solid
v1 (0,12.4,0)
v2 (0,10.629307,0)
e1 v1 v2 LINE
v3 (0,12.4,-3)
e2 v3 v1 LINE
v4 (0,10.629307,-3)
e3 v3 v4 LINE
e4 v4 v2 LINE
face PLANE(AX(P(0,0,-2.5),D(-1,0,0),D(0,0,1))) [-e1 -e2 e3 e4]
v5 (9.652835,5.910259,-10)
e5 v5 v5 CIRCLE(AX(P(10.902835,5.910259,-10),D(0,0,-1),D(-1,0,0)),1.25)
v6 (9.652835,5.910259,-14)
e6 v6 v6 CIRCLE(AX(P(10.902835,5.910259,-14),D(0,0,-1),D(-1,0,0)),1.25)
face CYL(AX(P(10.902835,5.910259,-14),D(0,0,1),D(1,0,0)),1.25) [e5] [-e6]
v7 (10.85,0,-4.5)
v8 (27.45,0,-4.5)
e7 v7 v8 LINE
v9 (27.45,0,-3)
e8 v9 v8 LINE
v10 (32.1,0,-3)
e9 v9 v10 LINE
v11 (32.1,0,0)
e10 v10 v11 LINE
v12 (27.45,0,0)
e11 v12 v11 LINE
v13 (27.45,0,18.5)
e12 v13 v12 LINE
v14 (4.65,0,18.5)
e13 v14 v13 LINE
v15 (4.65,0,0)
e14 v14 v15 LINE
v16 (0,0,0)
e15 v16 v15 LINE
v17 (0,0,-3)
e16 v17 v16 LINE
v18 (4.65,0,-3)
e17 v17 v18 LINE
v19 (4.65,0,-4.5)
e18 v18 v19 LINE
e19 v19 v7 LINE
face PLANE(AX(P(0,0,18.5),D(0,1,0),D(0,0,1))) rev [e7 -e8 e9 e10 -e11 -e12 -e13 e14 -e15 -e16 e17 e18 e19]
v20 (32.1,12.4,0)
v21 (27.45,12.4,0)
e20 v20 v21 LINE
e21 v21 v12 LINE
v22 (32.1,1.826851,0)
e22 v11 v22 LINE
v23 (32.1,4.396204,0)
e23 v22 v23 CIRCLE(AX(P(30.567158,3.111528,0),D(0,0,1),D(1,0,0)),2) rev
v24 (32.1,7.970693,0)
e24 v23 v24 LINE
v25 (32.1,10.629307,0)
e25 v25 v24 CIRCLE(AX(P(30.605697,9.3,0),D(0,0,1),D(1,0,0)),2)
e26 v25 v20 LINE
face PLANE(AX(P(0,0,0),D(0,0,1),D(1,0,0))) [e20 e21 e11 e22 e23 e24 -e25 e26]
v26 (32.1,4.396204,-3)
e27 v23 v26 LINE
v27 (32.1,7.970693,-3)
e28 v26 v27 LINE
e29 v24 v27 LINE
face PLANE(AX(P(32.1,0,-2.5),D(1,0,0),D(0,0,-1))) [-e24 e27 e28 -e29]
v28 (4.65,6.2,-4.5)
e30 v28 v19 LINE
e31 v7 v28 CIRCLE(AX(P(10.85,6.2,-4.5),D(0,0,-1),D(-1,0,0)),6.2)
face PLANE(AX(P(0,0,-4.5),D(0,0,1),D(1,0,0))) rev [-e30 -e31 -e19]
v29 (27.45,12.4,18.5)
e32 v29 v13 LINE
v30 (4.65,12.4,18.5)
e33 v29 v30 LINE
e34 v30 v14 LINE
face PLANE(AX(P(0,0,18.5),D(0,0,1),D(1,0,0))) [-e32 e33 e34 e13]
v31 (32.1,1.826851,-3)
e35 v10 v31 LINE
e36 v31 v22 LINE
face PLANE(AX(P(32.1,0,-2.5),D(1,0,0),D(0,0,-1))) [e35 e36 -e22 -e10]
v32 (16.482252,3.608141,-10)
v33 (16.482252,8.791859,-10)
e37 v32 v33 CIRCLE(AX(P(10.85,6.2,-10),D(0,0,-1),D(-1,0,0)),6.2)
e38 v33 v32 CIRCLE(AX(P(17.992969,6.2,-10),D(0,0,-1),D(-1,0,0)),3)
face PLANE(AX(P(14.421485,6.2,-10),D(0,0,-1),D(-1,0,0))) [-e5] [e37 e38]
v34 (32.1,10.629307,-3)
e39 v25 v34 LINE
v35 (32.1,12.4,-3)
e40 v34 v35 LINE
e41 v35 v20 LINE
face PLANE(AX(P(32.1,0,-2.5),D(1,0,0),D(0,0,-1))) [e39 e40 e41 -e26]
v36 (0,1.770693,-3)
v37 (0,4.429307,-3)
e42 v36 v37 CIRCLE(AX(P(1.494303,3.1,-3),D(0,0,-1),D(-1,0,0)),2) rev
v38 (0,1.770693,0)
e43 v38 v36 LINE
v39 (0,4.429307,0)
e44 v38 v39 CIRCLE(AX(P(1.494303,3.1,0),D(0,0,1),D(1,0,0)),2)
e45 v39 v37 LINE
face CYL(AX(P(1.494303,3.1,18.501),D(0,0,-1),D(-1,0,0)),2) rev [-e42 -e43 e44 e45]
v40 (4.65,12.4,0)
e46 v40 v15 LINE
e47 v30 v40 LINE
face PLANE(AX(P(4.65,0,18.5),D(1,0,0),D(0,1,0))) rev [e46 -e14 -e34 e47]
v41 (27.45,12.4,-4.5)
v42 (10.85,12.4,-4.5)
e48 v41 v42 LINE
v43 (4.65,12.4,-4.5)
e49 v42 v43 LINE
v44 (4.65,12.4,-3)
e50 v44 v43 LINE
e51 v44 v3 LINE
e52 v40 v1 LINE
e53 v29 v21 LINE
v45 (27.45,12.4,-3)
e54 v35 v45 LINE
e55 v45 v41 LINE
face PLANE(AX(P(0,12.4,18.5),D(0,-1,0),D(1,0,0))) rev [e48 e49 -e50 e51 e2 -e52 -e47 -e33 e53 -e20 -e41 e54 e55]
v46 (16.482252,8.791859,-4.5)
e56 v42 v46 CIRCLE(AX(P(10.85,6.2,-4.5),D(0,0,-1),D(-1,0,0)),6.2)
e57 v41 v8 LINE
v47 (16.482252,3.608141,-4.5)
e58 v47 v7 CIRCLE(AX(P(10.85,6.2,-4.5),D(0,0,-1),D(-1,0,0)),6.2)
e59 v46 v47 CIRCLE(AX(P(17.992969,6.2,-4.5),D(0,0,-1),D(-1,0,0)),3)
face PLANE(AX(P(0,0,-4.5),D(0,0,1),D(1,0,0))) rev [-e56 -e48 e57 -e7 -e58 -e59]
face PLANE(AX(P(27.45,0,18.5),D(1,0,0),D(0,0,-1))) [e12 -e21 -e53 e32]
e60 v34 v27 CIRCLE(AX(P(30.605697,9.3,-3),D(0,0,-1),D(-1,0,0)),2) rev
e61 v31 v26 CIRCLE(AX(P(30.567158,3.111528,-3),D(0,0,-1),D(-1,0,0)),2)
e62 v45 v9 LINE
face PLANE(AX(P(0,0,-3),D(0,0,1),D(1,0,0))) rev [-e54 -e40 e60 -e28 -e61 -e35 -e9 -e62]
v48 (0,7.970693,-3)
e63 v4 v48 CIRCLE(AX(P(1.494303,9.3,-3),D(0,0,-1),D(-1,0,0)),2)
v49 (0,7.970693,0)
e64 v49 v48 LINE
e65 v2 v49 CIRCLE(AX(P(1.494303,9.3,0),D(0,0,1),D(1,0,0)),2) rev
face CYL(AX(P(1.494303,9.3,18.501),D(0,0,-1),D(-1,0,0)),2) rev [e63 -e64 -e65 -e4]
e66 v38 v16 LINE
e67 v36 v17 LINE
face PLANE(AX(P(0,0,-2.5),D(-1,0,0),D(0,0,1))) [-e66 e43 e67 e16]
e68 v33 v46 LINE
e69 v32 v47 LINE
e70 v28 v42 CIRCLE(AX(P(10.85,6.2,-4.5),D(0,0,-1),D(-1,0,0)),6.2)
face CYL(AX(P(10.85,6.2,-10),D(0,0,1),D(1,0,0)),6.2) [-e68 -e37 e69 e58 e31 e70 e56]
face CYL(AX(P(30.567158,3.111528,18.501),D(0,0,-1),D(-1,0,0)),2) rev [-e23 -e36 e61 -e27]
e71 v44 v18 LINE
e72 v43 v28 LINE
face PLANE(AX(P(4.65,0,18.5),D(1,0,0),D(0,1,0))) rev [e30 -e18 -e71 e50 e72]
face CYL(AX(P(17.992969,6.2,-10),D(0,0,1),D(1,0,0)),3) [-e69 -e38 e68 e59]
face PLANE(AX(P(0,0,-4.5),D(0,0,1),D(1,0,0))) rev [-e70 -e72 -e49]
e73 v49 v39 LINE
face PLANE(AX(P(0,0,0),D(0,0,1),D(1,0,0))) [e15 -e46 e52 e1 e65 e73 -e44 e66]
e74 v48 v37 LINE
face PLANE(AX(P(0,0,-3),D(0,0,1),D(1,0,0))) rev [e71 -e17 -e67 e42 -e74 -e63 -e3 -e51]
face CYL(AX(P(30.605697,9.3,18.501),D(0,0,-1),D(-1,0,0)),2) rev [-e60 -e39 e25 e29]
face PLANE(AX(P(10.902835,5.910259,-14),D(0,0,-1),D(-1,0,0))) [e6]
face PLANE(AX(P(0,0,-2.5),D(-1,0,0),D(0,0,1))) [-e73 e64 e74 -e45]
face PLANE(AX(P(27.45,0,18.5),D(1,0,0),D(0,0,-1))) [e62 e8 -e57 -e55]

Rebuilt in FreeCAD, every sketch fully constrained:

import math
import FreeCAD as App
import Part
import Sketcher

doc = App.newDocument("Part")
params = doc.addObject("Spreadsheet::Sheet", "Params")
for row, (alias, value) in enumerate([
    ("sketch1_width", "22.8 mm"),
    ("sketch1_height", "12.4 mm"),
    ("pad1_length", "18.5 mm"),
    ("sketch2_height", "12.4 mm"),
    ("sketch2_width", "4.65 mm"),
    ("pad2_length", "2.5 mm"),
    ("sketch3_height", "12.4 mm"),
    ("sketch3_width", "4.65 mm"),
    ("pad3_length", "2.5 mm"),
    ("sketch4_height", "12.4 mm"),
    ("sketch4_width", "4.65 mm"),
    ("pad4_length", "3 mm"),
    ("sketch5_width", "22.8 mm"),
    ("sketch5_height", "12.4 mm"),
    ("pad5_length", "4.5 mm"),
    ("sketch6_radius", "3 mm"),
    ("sketch6_radius2", "6.2 mm"),
    ("pad6_length", "5.5 mm"),
    ("sketch7_diameter", "2.5 mm"),
    ("pad7_length", "4 mm"),
    ("sketch8_radius", "3 mm"),
    ("sketch8_radius2", "6.2 mm"),
    ("pad8_length", "5 mm"),
    ("sketch9_diameter", "4 mm"),
    ("pocket1_length", "3 mm"),
], start=1):
    params.set(f"A{row}", alias)
    params.set(f"B{row}", "=" + value)
    params.setAlias(f"B{row}", alias)

body = doc.addObject("PartDesign::Body", "Body")

# Sketch on XY plane
sketch1 = doc.addObject("Sketcher::SketchObject", "Sketch")
body.addObject(sketch1)
sketch1.AttachmentSupport = (doc.XY_Plane, [""])
sketch1.MapMode = "FlatFace"
sketch1.addGeometry(Part.LineSegment(App.Vector(5, 12, 0), App.Vector(5, 0, 0)), False)
sketch1.addGeometry(Part.LineSegment(App.Vector(5, 0, 0), App.Vector(27, 0, 0)), False)
sketch1.addGeometry(Part.LineSegment(App.Vector(27, 0, 0), App.Vector(27, 12, 0)), False)
sketch1.addGeometry(Part.LineSegment(App.Vector(27, 12, 0), App.Vector(5, 12, 0)), False)
sketch1.addConstraint(Sketcher.Constraint("Coincident", 0, 2, 1, 1))
sketch1.addConstraint(Sketcher.Constraint("Coincident", 1, 2, 2, 1))
sketch1.addConstraint(Sketcher.Constraint("Coincident", 2, 2, 3, 1))
sketch1.addConstraint(Sketcher.Constraint("Coincident", 3, 2, 0, 1))
sketch1.addConstraint(Sketcher.Constraint("Vertical", 0))
sketch1.addConstraint(Sketcher.Constraint("Horizontal", 1))
sketch1.addConstraint(Sketcher.Constraint("Vertical", 2))
sketch1.addConstraint(Sketcher.Constraint("Horizontal", 3))
sketch1.addConstraint(Sketcher.Constraint("PointOnObject", 0, 2, -1))
sketch1.addConstraint(Sketcher.Constraint("DistanceX", 1, 1, 1, 2, 22.8))
sketch1.addConstraint(Sketcher.Constraint("DistanceY", 0, 2, 0, 1, 12.4))
sketch1.addConstraint(Sketcher.Constraint("DistanceX", -1, 1, 0, 2, 4.65))
sketch1.setExpression("Constraints[9]", "Params.sketch1_width")
sketch1.setExpression("Constraints[10]", "Params.sketch1_height")
pad1 = doc.addObject("PartDesign::Pad", "Pad")
body.addObject(pad1)
pad1.Profile = sketch1
pad1.setExpression("Length", "Params.pad1_length")
body2 = doc.addObject("PartDesign::Body", "Body001")

# Sketch on XY plane
sketch2 = doc.addObject("Sketcher::SketchObject", "Sketch001")
body2.addObject(sketch2)
sketch2.AttachmentSupport = (doc.getObject("XY_Plane001"), [""])
sketch2.MapMode = "FlatFace"
sketch2.addGeometry(Part.LineSegment(App.Vector(0, 12.4, 0), App.Vector(0, 0, 0)), False)
sketch2.addGeometry(Part.LineSegment(App.Vector(0, 0, 0), App.Vector(4.7, 0, 0)), False)
sketch2.addGeometry(Part.LineSegment(App.Vector(4.7, 0, 0), App.Vector(4.7, 12.4, 0)), False)
sketch2.addGeometry(Part.LineSegment(App.Vector(4.7, 12.4, 0), App.Vector(0, 12.4, 0)), False)
sketch2.addConstraint(Sketcher.Constraint("Coincident", 0, 2, 1, 1))
sketch2.addConstraint(Sketcher.Constraint("Coincident", 1, 2, 2, 1))
sketch2.addConstraint(Sketcher.Constraint("Coincident", 2, 2, 3, 1))
sketch2.addConstraint(Sketcher.Constraint("Coincident", 3, 2, 0, 1))
sketch2.addConstraint(Sketcher.Constraint("Vertical", 0))
sketch2.addConstraint(Sketcher.Constraint("Horizontal", 1))
sketch2.addConstraint(Sketcher.Constraint("Vertical", 2))
sketch2.addConstraint(Sketcher.Constraint("Horizontal", 3))
sketch2.addConstraint(Sketcher.Constraint("Coincident", 0, 2, -1, 1))
sketch2.addConstraint(Sketcher.Constraint("DistanceY", 0, 2, 0, 1, 12.4))
sketch2.addConstraint(Sketcher.Constraint("DistanceX", 1, 1, 1, 2, 4.65))
sketch2.setExpression("Constraints[9]", "Params.sketch2_height")
sketch2.setExpression("Constraints[10]", "Params.sketch2_width")
pad2 = doc.addObject("PartDesign::Pad", "Pad001")
body2.addObject(pad2)
pad2.Profile = sketch2
pad2.setExpression("Length", "Params.pad2_length")
pad2.Reversed = True
body3 = doc.addObject("PartDesign::Body", "Body002")

# Sketch on XY plane
sketch3 = doc.addObject("Sketcher::SketchObject", "Sketch002")
body3.addObject(sketch3)
sketch3.AttachmentSupport = (doc.getObject("XY_Plane002"), [""])
sketch3.MapMode = "FlatFace"
sketch3.addGeometry(Part.LineSegment(App.Vector(27.4, 12.4, 0), App.Vector(27.4, 0, 0)), False)
sketch3.addGeometry(Part.LineSegment(App.Vector(27.4, 0, 0), App.Vector(32.1, 0, 0)), False)
sketch3.addGeometry(Part.LineSegment(App.Vector(32.1, 0, 0), App.Vector(32.1, 12.4, 0)), False)
sketch3.addGeometry(Part.LineSegment(App.Vector(32.1, 12.4, 0), App.Vector(27.4, 12.4, 0)), False)
sketch3.addConstraint(Sketcher.Constraint("Coincident", 0, 2, 1, 1))
sketch3.addConstraint(Sketcher.Constraint("Coincident", 1, 2, 2, 1))
sketch3.addConstraint(Sketcher.Constraint("Coincident", 2, 2, 3, 1))
sketch3.addConstraint(Sketcher.Constraint("Coincident", 3, 2, 0, 1))
sketch3.addConstraint(Sketcher.Constraint("Vertical", 0))
sketch3.addConstraint(Sketcher.Constraint("Horizontal", 1))
sketch3.addConstraint(Sketcher.Constraint("Vertical", 2))
sketch3.addConstraint(Sketcher.Constraint("Horizontal", 3))
sketch3.addConstraint(Sketcher.Constraint("PointOnObject", 0, 2, -1))
sketch3.addConstraint(Sketcher.Constraint("DistanceY", 0, 2, 0, 1, 12.4))
sketch3.addConstraint(Sketcher.Constraint("DistanceX", 1, 1, 1, 2, 4.65))
sketch3.addConstraint(Sketcher.Constraint("DistanceX", -1, 1, 1, 2, 32.1))
sketch3.setExpression("Constraints[9]", "Params.sketch3_height")
sketch3.setExpression("Constraints[10]", "Params.sketch3_width")
pad3 = doc.addObject("PartDesign::Pad", "Pad002")
body3.addObject(pad3)
pad3.Profile = sketch3
pad3.setExpression("Length", "Params.pad3_length")
pad3.Reversed = True
body2.AllowCompound = True
doc.recompute()

boolean = doc.addObject("PartDesign::Boolean", "Boolean")
body2.addObject(boolean)
boolean.Type = "Fuse"
boolean.addObjects([body3])

# Sketch on XY plane
sketch4 = doc.addObject("Sketcher::SketchObject", "Sketch003")
body2.addObject(sketch4)
sketch4.AttachmentSupport = (doc.getObject("XY_Plane001"), [""])
sketch4.MapMode = "FlatFace"
sketch4.addGeometry(Part.LineSegment(App.Vector(27.4, 12.4, 0), App.Vector(27.4, 0, 0)), False)
sketch4.addGeometry(Part.LineSegment(App.Vector(27.4, 0, 0), App.Vector(32.1, 0, 0)), False)
sketch4.addGeometry(Part.LineSegment(App.Vector(32.1, 0, 0), App.Vector(32.1, 12.4, 0)), False)
sketch4.addGeometry(Part.LineSegment(App.Vector(32.1, 12.4, 0), App.Vector(27.4, 12.4, 0)), False)
sketch4.addGeometry(Part.LineSegment(App.Vector(0, 12.4, 0), App.Vector(0, 0, 0)), False)
sketch4.addGeometry(Part.LineSegment(App.Vector(0, 0, 0), App.Vector(4.7, 0, 0)), False)
sketch4.addGeometry(Part.LineSegment(App.Vector(4.7, 0, 0), App.Vector(4.7, 12.4, 0)), False)
sketch4.addGeometry(Part.LineSegment(App.Vector(4.7, 12.4, 0), App.Vector(0, 12.4, 0)), False)
sketch4.addConstraint(Sketcher.Constraint("Coincident", 0, 2, 1, 1))
sketch4.addConstraint(Sketcher.Constraint("Coincident", 1, 2, 2, 1))
sketch4.addConstraint(Sketcher.Constraint("Coincident", 2, 2, 3, 1))
sketch4.addConstraint(Sketcher.Constraint("Coincident", 3, 2, 0, 1))
sketch4.addConstraint(Sketcher.Constraint("Coincident", 4, 2, 5, 1))
sketch4.addConstraint(Sketcher.Constraint("Coincident", 5, 2, 6, 1))
sketch4.addConstraint(Sketcher.Constraint("Coincident", 6, 2, 7, 1))
sketch4.addConstraint(Sketcher.Constraint("Coincident", 7, 2, 4, 1))
sketch4.addConstraint(Sketcher.Constraint("Vertical", 0))
sketch4.addConstraint(Sketcher.Constraint("Horizontal", 1))
sketch4.addConstraint(Sketcher.Constraint("Vertical", 2))
sketch4.addConstraint(Sketcher.Constraint("Horizontal", 3))
sketch4.addConstraint(Sketcher.Constraint("Vertical", 4))
sketch4.addConstraint(Sketcher.Constraint("Horizontal", 5))
sketch4.addConstraint(Sketcher.Constraint("Vertical", 6))
sketch4.addConstraint(Sketcher.Constraint("Horizontal", 7))
sketch4.addConstraint(Sketcher.Constraint("Coincident", 4, 2, -1, 1))
sketch4.addConstraint(Sketcher.Constraint("PointOnObject", 0, 2, -1))
sketch4.addConstraint(Sketcher.Constraint("Horizontal", 3, 2, 6, 2))
sketch4.addConstraint(Sketcher.Constraint("Equal", 3, 5))
sketch4.addConstraint(Sketcher.Constraint("DistanceY", 0, 2, 0, 1, 12.4))
sketch4.addConstraint(Sketcher.Constraint("DistanceX", 1, 1, 1, 2, 4.65))
sketch4.addConstraint(Sketcher.Constraint("DistanceX", -1, 1, 1, 2, 32.1))
sketch4.setExpression("Constraints[20]", "Params.sketch4_height")
sketch4.setExpression("Constraints[21]", "Params.sketch4_width")
pad4 = doc.addObject("PartDesign::Pad", "Pad003")
body2.addObject(pad4)
pad4.Profile = sketch4
pad4.setExpression("Length", "Params.pad4_length")
pad4.Reversed = True
body.AllowCompound = True
doc.recompute()

boolean2 = doc.addObject("PartDesign::Boolean", "Boolean001")
body.addObject(boolean2)
boolean2.Type = "Fuse"
boolean2.addObjects([body2])

# Sketch on XY plane
sketch5 = doc.addObject("Sketcher::SketchObject", "Sketch004")
body.addObject(sketch5)
sketch5.AttachmentSupport = (doc.XY_Plane, [""])
sketch5.MapMode = "FlatFace"
sketch5.addGeometry(Part.LineSegment(App.Vector(27, 0, 0), App.Vector(27, 12, 0)), False)
sketch5.addGeometry(Part.LineSegment(App.Vector(27, 12, 0), App.Vector(5, 12, 0)), False)
sketch5.addGeometry(Part.LineSegment(App.Vector(5, 12, 0), App.Vector(5, 0, 0)), False)
sketch5.addGeometry(Part.LineSegment(App.Vector(5, 0, 0), App.Vector(27, 0, 0)), False)
sketch5.addConstraint(Sketcher.Constraint("Coincident", 0, 2, 1, 1))
sketch5.addConstraint(Sketcher.Constraint("Coincident", 1, 2, 2, 1))
sketch5.addConstraint(Sketcher.Constraint("Coincident", 2, 2, 3, 1))
sketch5.addConstraint(Sketcher.Constraint("Coincident", 3, 2, 0, 1))
sketch5.addConstraint(Sketcher.Constraint("Vertical", 0))
sketch5.addConstraint(Sketcher.Constraint("Horizontal", 1))
sketch5.addConstraint(Sketcher.Constraint("Vertical", 2))
sketch5.addConstraint(Sketcher.Constraint("Horizontal", 3))
sketch5.addConstraint(Sketcher.Constraint("PointOnObject", 2, 2, -1))
sketch5.addConstraint(Sketcher.Constraint("DistanceX", 1, 2, 1, 1, 22.8))
sketch5.addConstraint(Sketcher.Constraint("DistanceY", 0, 1, 0, 2, 12.4))
sketch5.addConstraint(Sketcher.Constraint("DistanceX", -1, 1, 0, 2, 27.45))
sketch5.setExpression("Constraints[9]", "Params.sketch5_width")
sketch5.setExpression("Constraints[10]", "Params.sketch5_height")
pad5 = doc.addObject("PartDesign::Pad", "Pad004")
body.addObject(pad5)
pad5.Profile = sketch5
pad5.setExpression("Length", "Params.pad5_length")
pad5.Reversed = True

# Sketch on XY plane
sketch6 = doc.addObject("Sketcher::SketchObject", "Sketch005")
body.addObject(sketch6)
sketch6.AttachmentSupport = (doc.XY_Plane, [""])
sketch6.MapMode = "FlatFace"
sketch6.AttachmentOffset = App.Placement(App.Vector(0, 0, -4.5), App.Rotation())
sketch6.addGeometry(Part.ArcOfCircle(Part.Circle(App.Vector(10.8, 6.2, 0), App.Vector(0, 0, 1), 6.2), math.radians(25), math.radians(335)), False)
sketch6.addGeometry(Part.ArcOfCircle(Part.Circle(App.Vector(18, 6.2, 0), App.Vector(0, 0, 1), 3), math.radians(-120), math.radians(120)), False)
sketch6.addConstraint(Sketcher.Constraint("Coincident", 0, 1, 1, 2))
sketch6.addConstraint(Sketcher.Constraint("Coincident", 1, 1, 0, 2))
sketch6.addConstraint(Sketcher.Constraint("Horizontal", 0, 3, 1, 3))
sketch6.addConstraint(Sketcher.Constraint("Radius", 1, 3.0))
sketch6.addConstraint(Sketcher.Constraint("Radius", 0, 6.2))
sketch6.addConstraint(Sketcher.Constraint("DistanceY", -1, 1, 0, 3, 6.2))
sketch6.addConstraint(Sketcher.Constraint("DistanceX", -1, 1, 0, 3, 10.85))
sketch6.addConstraint(Sketcher.Constraint("DistanceX", -1, 1, 1, 3, 17.992969))
sketch6.setExpression("Constraints[3]", "Params.sketch6_radius")
sketch6.setExpression("Constraints[4]", "Params.sketch6_radius2")
pad6 = doc.addObject("PartDesign::Pad", "Pad005")
body.addObject(pad6)
pad6.Profile = sketch6
pad6.setExpression("Length", "Params.pad6_length")
pad6.Reversed = True

# Sketch on XY plane
sketch7 = doc.addObject("Sketcher::SketchObject", "Sketch006")
body.addObject(sketch7)
sketch7.AttachmentSupport = (doc.XY_Plane, [""])
sketch7.MapMode = "FlatFace"
sketch7.AttachmentOffset = App.Placement(App.Vector(0, 0, -10), App.Rotation())
sketch7.addGeometry(Part.Circle(App.Vector(10.9, 5.9, 0), App.Vector(0, 0, 1), 1.2), False)
sketch7.addConstraint(Sketcher.Constraint("Diameter", 0, 2.5))
sketch7.addConstraint(Sketcher.Constraint("DistanceY", -1, 1, 0, 3, 5.910259))
sketch7.addConstraint(Sketcher.Constraint("DistanceX", -1, 1, 0, 3, 10.902835))
sketch7.setExpression("Constraints[0]", "Params.sketch7_diameter")
pad7 = doc.addObject("PartDesign::Pad", "Pad006")
body.addObject(pad7)
pad7.Profile = sketch7
pad7.setExpression("Length", "Params.pad7_length")
pad7.Reversed = True

# Sketch on XY plane
sketch8 = doc.addObject("Sketcher::SketchObject", "Sketch007")
body.addObject(sketch8)
sketch8.AttachmentSupport = (doc.XY_Plane, [""])
sketch8.MapMode = "FlatFace"
sketch8.AttachmentOffset = App.Placement(App.Vector(0, 0, -4.5), App.Rotation())
sketch8.addGeometry(Part.ArcOfCircle(Part.Circle(App.Vector(10.8, 6.2, 0), App.Vector(0, 0, 1), 6.2), math.radians(25), math.radians(335)), False)
sketch8.addGeometry(Part.ArcOfCircle(Part.Circle(App.Vector(18, 6.2, 0), App.Vector(0, 0, 1), 3), math.radians(-120), math.radians(120)), False)
sketch8.addConstraint(Sketcher.Constraint("Coincident", 0, 1, 1, 2))
sketch8.addConstraint(Sketcher.Constraint("Coincident", 1, 1, 0, 2))
sketch8.addConstraint(Sketcher.Constraint("Horizontal", 0, 3, 1, 3))
sketch8.addConstraint(Sketcher.Constraint("Radius", 1, 3.0))
sketch8.addConstraint(Sketcher.Constraint("Radius", 0, 6.2))
sketch8.addConstraint(Sketcher.Constraint("DistanceY", -1, 1, 0, 3, 6.2))
sketch8.addConstraint(Sketcher.Constraint("DistanceX", -1, 1, 0, 3, 10.85))
sketch8.addConstraint(Sketcher.Constraint("DistanceX", -1, 1, 1, 3, 17.992969))
sketch8.setExpression("Constraints[3]", "Params.sketch8_radius")
sketch8.setExpression("Constraints[4]", "Params.sketch8_radius2")
pad8 = doc.addObject("PartDesign::Pad", "Pad007")
body.addObject(pad8)
pad8.Profile = sketch8
pad8.setExpression("Length", "Params.pad8_length")
pad8.Reversed = True

# Sketch on XY plane
sketch9 = doc.addObject("Sketcher::SketchObject", "Sketch008")
body.addObject(sketch9)
sketch9.AttachmentSupport = (doc.XY_Plane, [""])
sketch9.MapMode = "FlatFace"
sketch9.AttachmentOffset = App.Placement(App.Vector(0, 0, -3), App.Rotation())
sketch9.addGeometry(Part.ArcOfCircle(Part.Circle(App.Vector(30.6, 9.3, 0), App.Vector(0, 0, 1), 2), math.radians(-42), math.radians(42)), False)
sketch9.addGeometry(Part.ArcOfCircle(Part.Circle(App.Vector(30.6, 9.3, 0), App.Vector(0, 0, 1), 2), math.radians(180), math.radians(318)), False)
sketch9.addGeometry(Part.ArcOfCircle(Part.Circle(App.Vector(30.6, 9.3, 0), App.Vector(0, 0, 1), 2), math.radians(42), math.radians(180)), False)
sketch9.addGeometry(Part.Circle(App.Vector(1.5, 9.3, 0), App.Vector(0, 0, 1), 2), False)
sketch9.addGeometry(Part.ArcOfCircle(Part.Circle(App.Vector(1.5, 3.1, 0), App.Vector(0, 0, 1), 2), math.radians(-138), math.radians(138)), False)
sketch9.addGeometry(Part.ArcOfCircle(Part.Circle(App.Vector(1.5, 3.1, 0), App.Vector(0, 0, 1), 2), math.radians(180), math.radians(222)), False)
sketch9.addGeometry(Part.ArcOfCircle(Part.Circle(App.Vector(1.5, 3.1, 0), App.Vector(0, 0, 1), 2), math.radians(138), math.radians(180)), False)
sketch9.addGeometry(Part.Circle(App.Vector(30.6, 3.1, 0), App.Vector(0, 0, 1), 2), False)
sketch9.addConstraint(Sketcher.Constraint("Tangent", 0, 1, 1, 2))
sketch9.addConstraint(Sketcher.Constraint("Tangent", 1, 1, 2, 2))
sketch9.addConstraint(Sketcher.Constraint("Tangent", 2, 1, 0, 2))
sketch9.addConstraint(Sketcher.Constraint("Tangent", 4, 1, 5, 2))
sketch9.addConstraint(Sketcher.Constraint("Tangent", 5, 1, 6, 2))
sketch9.addConstraint(Sketcher.Constraint("Tangent", 6, 1, 4, 2))
sketch9.addConstraint(Sketcher.Constraint("Equal", 2, 3))
sketch9.addConstraint(Sketcher.Constraint("Equal", 3, 4))
sketch9.addConstraint(Sketcher.Constraint("Equal", 6, 7))
sketch9.addConstraint(Sketcher.Constraint("PointOnObject", 4, 1, -2))
sketch9.addConstraint(Sketcher.Constraint("PointOnObject", 6, 1, -2))
sketch9.addConstraint(Sketcher.Constraint("Horizontal", 2, 3, 3, 3))
sketch9.addConstraint(Sketcher.Constraint("Horizontal", 3, 3, 1, 1))
sketch9.addConstraint(Sketcher.Constraint("Horizontal", 6, 3, 5, 1))
sketch9.addConstraint(Sketcher.Constraint("Vertical", 3, 3, 4, 3))
sketch9.addConstraint(Sketcher.Constraint("Vertical", 0, 1, 2, 1))
sketch9.addConstraint(Sketcher.Constraint("Diameter", 3, 4.0))
sketch9.addConstraint(Sketcher.Constraint("DistanceY", -1, 1, 0, 3, 9.3))
sketch9.addConstraint(Sketcher.Constraint("DistanceY", -1, 1, 4, 3, 3.1))
sketch9.addConstraint(Sketcher.Constraint("DistanceX", -1, 1, 0, 1, 32.1))
sketch9.addConstraint(Sketcher.Constraint("DistanceX", 7, 3, 0, 3, 0.038539))
sketch9.addConstraint(Sketcher.Constraint("DistanceX", -1, 1, 0, 3, 30.605697))
sketch9.addConstraint(Sketcher.Constraint("DistanceX", -1, 1, 3, 3, 1.494303))
sketch9.addConstraint(Sketcher.Constraint("DistanceY", -1, 1, 7, 3, 3.111528))
sketch9.setExpression("Constraints[16]", "Params.sketch9_diameter")
pocket1 = doc.addObject("PartDesign::Pocket", "Pocket")
body.addObject(pocket1)
pocket1.Profile = sketch9
pocket1.setExpression("Length", "Params.pocket1_length")
pocket1.Reversed = True

doc.recompute()
